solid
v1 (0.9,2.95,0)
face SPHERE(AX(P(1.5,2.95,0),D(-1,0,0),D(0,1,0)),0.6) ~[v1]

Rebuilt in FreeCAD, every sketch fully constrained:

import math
import FreeCAD as App
import Part
import Sketcher
Q = App.Units.Quantity

doc = App.newDocument("Part")
body = doc.addObject("PartDesign::Body", "Body")

# Sketch on XY plane
sketch1 = doc.addObject("Sketcher::SketchObject", "Sketch")
body.addObject(sketch1)
sketch1.AttachmentSupport = (doc.XY_Plane, [""])
sketch1.MapMode = "FlatFace"
sketch1.addGeometry(Part.LineSegment(App.Vector(0.9, 3, 0), App.Vector(2.1, 3, 0)), False)
sketch1.addGeometry(Part.ArcOfCircle(Part.Circle(App.Vector(1.5, 3, 0), App.Vector(0, 0, 1), 0.6), math.radians(0), math.radians(180)), False)
sketch1.addGeometry(Part.LineSegment(App.Vector(0.9, 3, 0), App.Vector(2.1, 3, 0)), True)  # axis
sketch1.addConstraint(Sketcher.Constraint("Coincident", 0, 1, 1, 2))
sketch1.addConstraint(Sketcher.Constraint("Coincident", 1, 1, 0, 2))
sketch1.addConstraint(Sketcher.Constraint("Horizontal", 0))
sketch1.addConstraint(Sketcher.Constraint("Horizontal", 2))
sketch1.addConstraint(Sketcher.Constraint("Coincident", 2, 1, 0, 1))
sketch1.addConstraint(Sketcher.Constraint("Horizontal", 1, 3, 0, 1))
sketch1.addConstraint(Sketcher.Constraint("Equal", 0, 2))
sketch1.addConstraint(Sketcher.Constraint("Radius", 1, Q("0.6 mm")))
sketch1.addConstraint(Sketcher.Constraint("DistanceX", -1, 1, 1, 3, Q("1.5 mm")))
sketch1.addConstraint(Sketcher.Constraint("DistanceY", -1, 1, 1, 3, Q("2.95 mm")))
revolution = doc.addObject("PartDesign::Revolution", "Revolution")
body.addObject(revolution)
revolution.Profile = sketch1
revolution.ReferenceAxis = (sketch1, ["Axis0"])
revolution.Angle = 360

doc.recompute()
